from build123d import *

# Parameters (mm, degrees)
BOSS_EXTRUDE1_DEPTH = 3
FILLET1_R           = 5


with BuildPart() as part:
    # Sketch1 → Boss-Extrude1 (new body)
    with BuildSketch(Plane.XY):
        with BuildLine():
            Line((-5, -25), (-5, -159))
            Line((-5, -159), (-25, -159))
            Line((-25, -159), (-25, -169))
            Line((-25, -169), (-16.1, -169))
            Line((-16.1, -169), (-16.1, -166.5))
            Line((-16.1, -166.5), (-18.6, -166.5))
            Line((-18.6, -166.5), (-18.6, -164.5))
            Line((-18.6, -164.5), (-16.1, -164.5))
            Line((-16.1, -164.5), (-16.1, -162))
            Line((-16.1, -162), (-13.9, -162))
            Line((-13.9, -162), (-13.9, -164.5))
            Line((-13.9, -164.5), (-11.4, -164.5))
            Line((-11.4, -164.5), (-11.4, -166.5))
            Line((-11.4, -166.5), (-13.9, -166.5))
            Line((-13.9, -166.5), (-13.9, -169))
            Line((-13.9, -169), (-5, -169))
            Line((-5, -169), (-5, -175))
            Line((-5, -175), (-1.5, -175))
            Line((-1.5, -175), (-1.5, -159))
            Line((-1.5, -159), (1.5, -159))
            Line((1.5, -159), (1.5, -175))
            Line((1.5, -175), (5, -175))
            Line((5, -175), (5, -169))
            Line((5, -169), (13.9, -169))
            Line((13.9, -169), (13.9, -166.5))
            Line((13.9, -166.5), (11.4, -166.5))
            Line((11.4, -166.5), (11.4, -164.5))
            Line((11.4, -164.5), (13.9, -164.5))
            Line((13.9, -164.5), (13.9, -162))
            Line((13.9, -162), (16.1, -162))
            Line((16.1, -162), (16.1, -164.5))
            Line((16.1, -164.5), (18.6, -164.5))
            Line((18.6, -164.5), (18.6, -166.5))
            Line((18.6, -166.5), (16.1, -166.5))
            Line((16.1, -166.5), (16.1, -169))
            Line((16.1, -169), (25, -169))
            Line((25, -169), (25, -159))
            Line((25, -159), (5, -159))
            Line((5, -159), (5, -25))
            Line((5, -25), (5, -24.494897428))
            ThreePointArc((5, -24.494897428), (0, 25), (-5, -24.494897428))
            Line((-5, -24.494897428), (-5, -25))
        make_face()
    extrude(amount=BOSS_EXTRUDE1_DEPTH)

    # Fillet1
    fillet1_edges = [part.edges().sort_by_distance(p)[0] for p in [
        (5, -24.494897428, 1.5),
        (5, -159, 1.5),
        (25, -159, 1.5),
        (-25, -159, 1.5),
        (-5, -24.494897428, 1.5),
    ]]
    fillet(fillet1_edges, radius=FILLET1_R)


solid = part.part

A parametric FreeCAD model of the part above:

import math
import FreeCAD as App
import Part
import Sketcher
from FreeCAD import Vector


def edges_at(feature, points):
    """Names of the edges that pass closest to the given points."""
    edges = feature.Shape.Edges
    near = lambda p: min(range(len(edges)), key=lambda i: edges[i].distToShape(Part.Vertex(*p))[0])
    return sorted({f"Edge{near(p) + 1}" for p in points})

doc = App.newDocument("Part")
body = doc.addObject("PartDesign::Body", "Body")

# Sketch on XY plane
sketch1 = body.newObject("Sketcher::SketchObject", "Sketch")
sketch1.AttachmentSupport = (doc.getObject("XY_Plane"), [""])
sketch1.MapMode = "FlatFace"
sketch1.addGeometry([
    Part.LineSegment(Vector(-5, -159, 0), Vector(-25, -159, 0)),  # 0
    Part.LineSegment(Vector(-25, -159, 0), Vector(-25, -169, 0)),  # 1
    Part.LineSegment(Vector(-25, -169, 0), Vector(-16.1, -169, 0)),  # 2
    Part.LineSegment(Vector(-16.1, -169, 0), Vector(-16.1, -166.5, 0)),  # 3
    Part.LineSegment(Vector(-16.1, -166.5, 0), Vector(-18.6, -166.5, 0)),  # 4
    Part.LineSegment(Vector(-18.6, -166.5, 0), Vector(-18.6, -164.5, 0)),  # 5
    Part.LineSegment(Vector(-18.6, -164.5, 0), Vector(-16.1, -164.5, 0)),  # 6
    Part.LineSegment(Vector(-16.1, -164.5, 0), Vector(-16.1, -162, 0)),  # 7
    Part.LineSegment(Vector(-16.1, -162, 0), Vector(-13.9, -162, 0)),  # 8
    Part.LineSegment(Vector(-13.9, -162, 0), Vector(-13.9, -164.5, 0)),  # 9
    Part.LineSegment(Vector(-13.9, -164.5, 0), Vector(-11.4, -164.5, 0)),  # 10
    Part.LineSegment(Vector(-11.4, -164.5, 0), Vector(-11.4, -166.5, 0)),  # 11
    Part.LineSegment(Vector(-11.4, -166.5, 0), Vector(-13.9, -166.5, 0)),  # 12
    Part.LineSegment(Vector(-13.9, -166.5, 0), Vector(-13.9, -169, 0)),  # 13
    Part.LineSegment(Vector(-13.9, -169, 0), Vector(-5, -169, 0)),  # 14
    Part.LineSegment(Vector(-5, -169, 0), Vector(-5, -175, 0)),  # 15
    Part.LineSegment(Vector(-5, -175, 0), Vector(-1.5, -175, 0)),  # 16
    Part.LineSegment(Vector(-1.5, -175, 0), Vector(-1.5, -159, 0)),  # 17
    Part.LineSegment(Vector(-1.5, -159, 0), Vector(1.5, -159, 0)),  # 18
    Part.LineSegment(Vector(1.5, -159, 0), Vector(1.5, -175, 0)),  # 19
    Part.LineSegment(Vector(1.5, -175, 0), Vector(5, -175, 0)),  # 20
    Part.LineSegment(Vector(5, -175, 0), Vector(5, -169, 0)),  # 21
    Part.LineSegment(Vector(5, -169, 0), Vector(13.9, -169, 0)),  # 22
    Part.LineSegment(Vector(13.9, -169, 0), Vector(13.9, -166.5, 0)),  # 23
    Part.LineSegment(Vector(13.9, -166.5, 0), Vector(11.4, -166.5, 0)),  # 24
    Part.LineSegment(Vector(11.4, -166.5, 0), Vector(11.4, -164.5, 0)),  # 25
    Part.LineSegment(Vector(11.4, -164.5, 0), Vector(13.9, -164.5, 0)),  # 26
    Part.LineSegment(Vector(13.9, -164.5, 0), Vector(13.9, -162, 0)),  # 27
    Part.LineSegment(Vector(13.9, -162, 0), Vector(16.1, -162, 0)),  # 28
    Part.LineSegment(Vector(16.1, -162, 0), Vector(16.1, -164.5, 0)),  # 29
    Part.LineSegment(Vector(16.1, -164.5, 0), Vector(18.6, -164.5, 0)),  # 30
    Part.LineSegment(Vector(18.6, -164.5, 0), Vector(18.6, -166.5, 0)),  # 31
    Part.LineSegment(Vector(18.6, -166.5, 0), Vector(16.1, -166.5, 0)),  # 32
    Part.LineSegment(Vector(16.1, -166.5, 0), Vector(16.1, -169, 0)),  # 33
    Part.LineSegment(Vector(16.1, -169, 0), Vector(25, -169, 0)),  # 34
    Part.LineSegment(Vector(25, -169, 0), Vector(25, -159, 0)),  # 35
    Part.LineSegment(Vector(25, -159, 0), Vector(5, -159, 0)),  # 36
    Part.LineSegment(Vector(5, -159, 0), Vector(5, -24.5, 0)),  # 37
    Part.ArcOfCircle(Part.Circle(Vector(0, 0, 0), Vector(0, 0, 1), 25), math.radians(-78), math.radians(258)),  # 38
    Part.LineSegment(Vector(-5, -24.5, 0), Vector(-5, -159, 0)),  # 39
], False)
sketch1.addConstraint([
    Sketcher.Constraint("Coincident", 0, 2, 1, 1),
    Sketcher.Constraint("Coincident", 1, 2, 2, 1),
    Sketcher.Constraint("Coincident", 2, 2, 3, 1),
    Sketcher.Constraint("Coincident", 3, 2, 4, 1),
    Sketcher.Constraint("Coincident", 4, 2, 5, 1),
    Sketcher.Constraint("Coincident", 5, 2, 6, 1),
    Sketcher.Constraint("Coincident", 6, 2, 7, 1),
    Sketcher.Constraint("Coincident", 7, 2, 8, 1),
    Sketcher.Constraint("Coincident", 8, 2, 9, 1),
    Sketcher.Constraint("Coincident", 9, 2, 10, 1),
    Sketcher.Constraint("Coincident", 10, 2, 11, 1),
    Sketcher.Constraint("Coincident", 11, 2, 12, 1),
    Sketcher.Constraint("Coincident", 12, 2, 13, 1),
    Sketcher.Constraint("Coincident", 13, 2, 14, 1),
    Sketcher.Constraint("Coincident", 14, 2, 15, 1),
    Sketcher.Constraint("Coincident", 15, 2, 16, 1),
    Sketcher.Constraint("Coincident", 16, 2, 17, 1),
    Sketcher.Constraint("Coincident", 17, 2, 18, 1),
    Sketcher.Constraint("Coincident", 18, 2, 19, 1),
    Sketcher.Constraint("Coincident", 19, 2, 20, 1),
    Sketcher.Constraint("Coincident", 20, 2, 21, 1),
    Sketcher.Constraint("Coincident", 21, 2, 22, 1),
    Sketcher.Constraint("Coincident", 22, 2, 23, 1),
    Sketcher.Constraint("Coincident", 23, 2, 24, 1),
    Sketcher.Constraint("Coincident", 24, 2, 25, 1),
    Sketcher.Constraint("Coincident", 25, 2, 26, 1),
    Sketcher.Constraint("Coincident", 26, 2, 27, 1),
    Sketcher.Constraint("Coincident", 27, 2, 28, 1),
    Sketcher.Constraint("Coincident", 28, 2, 29, 1),
    Sketcher.Constraint("Coincident", 29, 2, 30, 1),
    Sketcher.Constraint("Coincident", 30, 2, 31, 1),
    Sketcher.Constraint("Coincident", 31, 2, 32, 1),
    Sketcher.Constraint("Coincident", 32, 2, 33, 1),
    Sketcher.Constraint("Coincident", 33, 2, 34, 1),
    Sketcher.Constraint("Coincident", 34, 2, 35, 1),
    Sketcher.Constraint("Coincident", 35, 2, 36, 1),
    Sketcher.Constraint("Coincident", 36, 2, 37, 1),
    Sketcher.Constraint("Coincident", 37, 2, 38, 1),
    Sketcher.Constraint("Coincident", 38, 2, 39, 1),
    Sketcher.Constraint("Coincident", 39, 2, 0, 1),
    Sketcher.Constraint("Horizontal", 0),
    Sketcher.Constraint("Vertical", 1),
    Sketcher.Constraint("Horizontal", 2),
    Sketcher.Constraint("Vertical", 3),
    Sketcher.Constraint("Horizontal", 4),
    Sketcher.Constraint("Vertical", 5),
    Sketcher.Constraint("Horizontal", 6),
    Sketcher.Constraint("Vertical", 7),
    Sketcher.Constraint("Horizontal", 8),
    Sketcher.Constraint("Vertical", 9),
    Sketcher.Constraint("Horizontal", 10),
    Sketcher.Constraint("Vertical", 11),
    Sketcher.Constraint("Horizontal", 12),
    Sketcher.Constraint("Vertical", 13),
    Sketcher.Constraint("Horizontal", 14),
    Sketcher.Constraint("Vertical", 15),
    Sketcher.Constraint("Horizontal", 16),
    Sketcher.Constraint("Vertical", 17),
    Sketcher.Constraint("Horizontal", 18),
    Sketcher.Constraint("Vertical", 19),
    Sketcher.Constraint("Horizontal", 20),
    Sketcher.Constraint("Vertical", 21),
    Sketcher.Constraint("Horizontal", 22),
    Sketcher.Constraint("Vertical", 23),
    Sketcher.Constraint("Horizontal", 24),
    Sketcher.Constraint("Vertical", 25),
    Sketcher.Constraint("Horizontal", 26),
    Sketcher.Constraint("Vertical", 27),
    Sketcher.Constraint("Horizontal", 28),
    Sketcher.Constraint("Vertical", 29),
    Sketcher.Constraint("Horizontal", 30),
    Sketcher.Constraint("Vertical", 31),
    Sketcher.Constraint("Horizontal", 32),
    Sketcher.Constraint("Vertical", 33),
    Sketcher.Constraint("Horizontal", 34),
    Sketcher.Constraint("Vertical", 35),
    Sketcher.Constraint("Horizontal", 36),
    Sketcher.Constraint("Vertical", 37),
    Sketcher.Constraint("Vertical", 39),
    Sketcher.Constraint("Coincident", 38, 3, -1, 1),
    Sketcher.Constraint("Symmetric", 16, 2, 19, 2, -2),
    Sketcher.Constraint("Symmetric", 14, 2, 21, 2, -2),
    Sketcher.Constraint("Symmetric", 12, 2, 23, 2, -2),
    Sketcher.Constraint("Symmetric", 10, 2, 25, 2, -2),
    Sketcher.Constraint("Symmetric", 8, 2, 27, 2, -2),
    Sketcher.Constraint("Symmetric", 6, 2, 29, 2, -2),
    Sketcher.Constraint("Symmetric", 4, 2, 31, 2, -2),
    Sketcher.Constraint("Symmetric", 2, 2, 33, 2, -2),
    Sketcher.Constraint("Symmetric", 0, 2, 35, 2, -2),
    Sketcher.Constraint("Horizontal", 6, 2, 9, 2),
    Sketcher.Constraint("Horizontal", 4, 2, 11, 2),
    Sketcher.Constraint("Horizontal", 2, 2, 13, 2),
    Sketcher.Constraint("Horizontal", 0, 2, 17, 2),
    Sketcher.Constraint("Horizontal", 37, 2, 38, 2),
    Sketcher.Constraint("Vertical", 3, 2, 6, 2),
    Sketcher.Constraint("Vertical", 9, 2, 12, 2),
    Sketcher.Constraint("Vertical", 21, 2, 36, 2),
    Sketcher.Constraint("Equal", 6, 10),
    Sketcher.Constraint("Equal", 2, 14),
    Sketcher.Constraint("Equal", 32, 3),
    Sketcher.Constraint("Equal", 3, 7),
    Sketcher.Constraint("Radius", 38, 25.0),
    Sketcher.Constraint("DistanceX", 0, 2, 0, 1, 20.0),
    Sketcher.Constraint("DistanceX", 18, 1, 18, 2, 3.0),
    Sketcher.Constraint("DistanceY", 1, 2, 1, 1, 10.0),
    Sketcher.Constraint("DistanceY", 5, 1, 5, 2, 2.0),
    Sketcher.Constraint("DistanceY", 15, 2, 15, 1, 6.0),
    Sketcher.Constraint("DistanceX", 2, 1, 2, 2, 8.9),
    Sketcher.Constraint("DistanceX", 4, 2, 4, 1, 2.5),
    Sketcher.Constraint("DistanceX", 16, 1, 16, 2, 3.5),
    Sketcher.Constraint("DistanceY", 0, 2, -1, 1, 159.0),
])
pad1 = body.newObject("PartDesign::Pad", "Pad")
pad1.Profile = sketch1
pad1.Length = 3
doc.recompute()

fillet = body.newObject("PartDesign::Fillet", "Fillet")
fillet.Base = (pad1, edges_at(pad1, [
    (5, -24.495, 1.5),
    (5, -159, 1.5),
    (25, -159, 1.5),
    (-25, -159, 1.5),
    (-5, -24.495, 1.5),
]))
fillet.Radius = 5

doc.recompute()
